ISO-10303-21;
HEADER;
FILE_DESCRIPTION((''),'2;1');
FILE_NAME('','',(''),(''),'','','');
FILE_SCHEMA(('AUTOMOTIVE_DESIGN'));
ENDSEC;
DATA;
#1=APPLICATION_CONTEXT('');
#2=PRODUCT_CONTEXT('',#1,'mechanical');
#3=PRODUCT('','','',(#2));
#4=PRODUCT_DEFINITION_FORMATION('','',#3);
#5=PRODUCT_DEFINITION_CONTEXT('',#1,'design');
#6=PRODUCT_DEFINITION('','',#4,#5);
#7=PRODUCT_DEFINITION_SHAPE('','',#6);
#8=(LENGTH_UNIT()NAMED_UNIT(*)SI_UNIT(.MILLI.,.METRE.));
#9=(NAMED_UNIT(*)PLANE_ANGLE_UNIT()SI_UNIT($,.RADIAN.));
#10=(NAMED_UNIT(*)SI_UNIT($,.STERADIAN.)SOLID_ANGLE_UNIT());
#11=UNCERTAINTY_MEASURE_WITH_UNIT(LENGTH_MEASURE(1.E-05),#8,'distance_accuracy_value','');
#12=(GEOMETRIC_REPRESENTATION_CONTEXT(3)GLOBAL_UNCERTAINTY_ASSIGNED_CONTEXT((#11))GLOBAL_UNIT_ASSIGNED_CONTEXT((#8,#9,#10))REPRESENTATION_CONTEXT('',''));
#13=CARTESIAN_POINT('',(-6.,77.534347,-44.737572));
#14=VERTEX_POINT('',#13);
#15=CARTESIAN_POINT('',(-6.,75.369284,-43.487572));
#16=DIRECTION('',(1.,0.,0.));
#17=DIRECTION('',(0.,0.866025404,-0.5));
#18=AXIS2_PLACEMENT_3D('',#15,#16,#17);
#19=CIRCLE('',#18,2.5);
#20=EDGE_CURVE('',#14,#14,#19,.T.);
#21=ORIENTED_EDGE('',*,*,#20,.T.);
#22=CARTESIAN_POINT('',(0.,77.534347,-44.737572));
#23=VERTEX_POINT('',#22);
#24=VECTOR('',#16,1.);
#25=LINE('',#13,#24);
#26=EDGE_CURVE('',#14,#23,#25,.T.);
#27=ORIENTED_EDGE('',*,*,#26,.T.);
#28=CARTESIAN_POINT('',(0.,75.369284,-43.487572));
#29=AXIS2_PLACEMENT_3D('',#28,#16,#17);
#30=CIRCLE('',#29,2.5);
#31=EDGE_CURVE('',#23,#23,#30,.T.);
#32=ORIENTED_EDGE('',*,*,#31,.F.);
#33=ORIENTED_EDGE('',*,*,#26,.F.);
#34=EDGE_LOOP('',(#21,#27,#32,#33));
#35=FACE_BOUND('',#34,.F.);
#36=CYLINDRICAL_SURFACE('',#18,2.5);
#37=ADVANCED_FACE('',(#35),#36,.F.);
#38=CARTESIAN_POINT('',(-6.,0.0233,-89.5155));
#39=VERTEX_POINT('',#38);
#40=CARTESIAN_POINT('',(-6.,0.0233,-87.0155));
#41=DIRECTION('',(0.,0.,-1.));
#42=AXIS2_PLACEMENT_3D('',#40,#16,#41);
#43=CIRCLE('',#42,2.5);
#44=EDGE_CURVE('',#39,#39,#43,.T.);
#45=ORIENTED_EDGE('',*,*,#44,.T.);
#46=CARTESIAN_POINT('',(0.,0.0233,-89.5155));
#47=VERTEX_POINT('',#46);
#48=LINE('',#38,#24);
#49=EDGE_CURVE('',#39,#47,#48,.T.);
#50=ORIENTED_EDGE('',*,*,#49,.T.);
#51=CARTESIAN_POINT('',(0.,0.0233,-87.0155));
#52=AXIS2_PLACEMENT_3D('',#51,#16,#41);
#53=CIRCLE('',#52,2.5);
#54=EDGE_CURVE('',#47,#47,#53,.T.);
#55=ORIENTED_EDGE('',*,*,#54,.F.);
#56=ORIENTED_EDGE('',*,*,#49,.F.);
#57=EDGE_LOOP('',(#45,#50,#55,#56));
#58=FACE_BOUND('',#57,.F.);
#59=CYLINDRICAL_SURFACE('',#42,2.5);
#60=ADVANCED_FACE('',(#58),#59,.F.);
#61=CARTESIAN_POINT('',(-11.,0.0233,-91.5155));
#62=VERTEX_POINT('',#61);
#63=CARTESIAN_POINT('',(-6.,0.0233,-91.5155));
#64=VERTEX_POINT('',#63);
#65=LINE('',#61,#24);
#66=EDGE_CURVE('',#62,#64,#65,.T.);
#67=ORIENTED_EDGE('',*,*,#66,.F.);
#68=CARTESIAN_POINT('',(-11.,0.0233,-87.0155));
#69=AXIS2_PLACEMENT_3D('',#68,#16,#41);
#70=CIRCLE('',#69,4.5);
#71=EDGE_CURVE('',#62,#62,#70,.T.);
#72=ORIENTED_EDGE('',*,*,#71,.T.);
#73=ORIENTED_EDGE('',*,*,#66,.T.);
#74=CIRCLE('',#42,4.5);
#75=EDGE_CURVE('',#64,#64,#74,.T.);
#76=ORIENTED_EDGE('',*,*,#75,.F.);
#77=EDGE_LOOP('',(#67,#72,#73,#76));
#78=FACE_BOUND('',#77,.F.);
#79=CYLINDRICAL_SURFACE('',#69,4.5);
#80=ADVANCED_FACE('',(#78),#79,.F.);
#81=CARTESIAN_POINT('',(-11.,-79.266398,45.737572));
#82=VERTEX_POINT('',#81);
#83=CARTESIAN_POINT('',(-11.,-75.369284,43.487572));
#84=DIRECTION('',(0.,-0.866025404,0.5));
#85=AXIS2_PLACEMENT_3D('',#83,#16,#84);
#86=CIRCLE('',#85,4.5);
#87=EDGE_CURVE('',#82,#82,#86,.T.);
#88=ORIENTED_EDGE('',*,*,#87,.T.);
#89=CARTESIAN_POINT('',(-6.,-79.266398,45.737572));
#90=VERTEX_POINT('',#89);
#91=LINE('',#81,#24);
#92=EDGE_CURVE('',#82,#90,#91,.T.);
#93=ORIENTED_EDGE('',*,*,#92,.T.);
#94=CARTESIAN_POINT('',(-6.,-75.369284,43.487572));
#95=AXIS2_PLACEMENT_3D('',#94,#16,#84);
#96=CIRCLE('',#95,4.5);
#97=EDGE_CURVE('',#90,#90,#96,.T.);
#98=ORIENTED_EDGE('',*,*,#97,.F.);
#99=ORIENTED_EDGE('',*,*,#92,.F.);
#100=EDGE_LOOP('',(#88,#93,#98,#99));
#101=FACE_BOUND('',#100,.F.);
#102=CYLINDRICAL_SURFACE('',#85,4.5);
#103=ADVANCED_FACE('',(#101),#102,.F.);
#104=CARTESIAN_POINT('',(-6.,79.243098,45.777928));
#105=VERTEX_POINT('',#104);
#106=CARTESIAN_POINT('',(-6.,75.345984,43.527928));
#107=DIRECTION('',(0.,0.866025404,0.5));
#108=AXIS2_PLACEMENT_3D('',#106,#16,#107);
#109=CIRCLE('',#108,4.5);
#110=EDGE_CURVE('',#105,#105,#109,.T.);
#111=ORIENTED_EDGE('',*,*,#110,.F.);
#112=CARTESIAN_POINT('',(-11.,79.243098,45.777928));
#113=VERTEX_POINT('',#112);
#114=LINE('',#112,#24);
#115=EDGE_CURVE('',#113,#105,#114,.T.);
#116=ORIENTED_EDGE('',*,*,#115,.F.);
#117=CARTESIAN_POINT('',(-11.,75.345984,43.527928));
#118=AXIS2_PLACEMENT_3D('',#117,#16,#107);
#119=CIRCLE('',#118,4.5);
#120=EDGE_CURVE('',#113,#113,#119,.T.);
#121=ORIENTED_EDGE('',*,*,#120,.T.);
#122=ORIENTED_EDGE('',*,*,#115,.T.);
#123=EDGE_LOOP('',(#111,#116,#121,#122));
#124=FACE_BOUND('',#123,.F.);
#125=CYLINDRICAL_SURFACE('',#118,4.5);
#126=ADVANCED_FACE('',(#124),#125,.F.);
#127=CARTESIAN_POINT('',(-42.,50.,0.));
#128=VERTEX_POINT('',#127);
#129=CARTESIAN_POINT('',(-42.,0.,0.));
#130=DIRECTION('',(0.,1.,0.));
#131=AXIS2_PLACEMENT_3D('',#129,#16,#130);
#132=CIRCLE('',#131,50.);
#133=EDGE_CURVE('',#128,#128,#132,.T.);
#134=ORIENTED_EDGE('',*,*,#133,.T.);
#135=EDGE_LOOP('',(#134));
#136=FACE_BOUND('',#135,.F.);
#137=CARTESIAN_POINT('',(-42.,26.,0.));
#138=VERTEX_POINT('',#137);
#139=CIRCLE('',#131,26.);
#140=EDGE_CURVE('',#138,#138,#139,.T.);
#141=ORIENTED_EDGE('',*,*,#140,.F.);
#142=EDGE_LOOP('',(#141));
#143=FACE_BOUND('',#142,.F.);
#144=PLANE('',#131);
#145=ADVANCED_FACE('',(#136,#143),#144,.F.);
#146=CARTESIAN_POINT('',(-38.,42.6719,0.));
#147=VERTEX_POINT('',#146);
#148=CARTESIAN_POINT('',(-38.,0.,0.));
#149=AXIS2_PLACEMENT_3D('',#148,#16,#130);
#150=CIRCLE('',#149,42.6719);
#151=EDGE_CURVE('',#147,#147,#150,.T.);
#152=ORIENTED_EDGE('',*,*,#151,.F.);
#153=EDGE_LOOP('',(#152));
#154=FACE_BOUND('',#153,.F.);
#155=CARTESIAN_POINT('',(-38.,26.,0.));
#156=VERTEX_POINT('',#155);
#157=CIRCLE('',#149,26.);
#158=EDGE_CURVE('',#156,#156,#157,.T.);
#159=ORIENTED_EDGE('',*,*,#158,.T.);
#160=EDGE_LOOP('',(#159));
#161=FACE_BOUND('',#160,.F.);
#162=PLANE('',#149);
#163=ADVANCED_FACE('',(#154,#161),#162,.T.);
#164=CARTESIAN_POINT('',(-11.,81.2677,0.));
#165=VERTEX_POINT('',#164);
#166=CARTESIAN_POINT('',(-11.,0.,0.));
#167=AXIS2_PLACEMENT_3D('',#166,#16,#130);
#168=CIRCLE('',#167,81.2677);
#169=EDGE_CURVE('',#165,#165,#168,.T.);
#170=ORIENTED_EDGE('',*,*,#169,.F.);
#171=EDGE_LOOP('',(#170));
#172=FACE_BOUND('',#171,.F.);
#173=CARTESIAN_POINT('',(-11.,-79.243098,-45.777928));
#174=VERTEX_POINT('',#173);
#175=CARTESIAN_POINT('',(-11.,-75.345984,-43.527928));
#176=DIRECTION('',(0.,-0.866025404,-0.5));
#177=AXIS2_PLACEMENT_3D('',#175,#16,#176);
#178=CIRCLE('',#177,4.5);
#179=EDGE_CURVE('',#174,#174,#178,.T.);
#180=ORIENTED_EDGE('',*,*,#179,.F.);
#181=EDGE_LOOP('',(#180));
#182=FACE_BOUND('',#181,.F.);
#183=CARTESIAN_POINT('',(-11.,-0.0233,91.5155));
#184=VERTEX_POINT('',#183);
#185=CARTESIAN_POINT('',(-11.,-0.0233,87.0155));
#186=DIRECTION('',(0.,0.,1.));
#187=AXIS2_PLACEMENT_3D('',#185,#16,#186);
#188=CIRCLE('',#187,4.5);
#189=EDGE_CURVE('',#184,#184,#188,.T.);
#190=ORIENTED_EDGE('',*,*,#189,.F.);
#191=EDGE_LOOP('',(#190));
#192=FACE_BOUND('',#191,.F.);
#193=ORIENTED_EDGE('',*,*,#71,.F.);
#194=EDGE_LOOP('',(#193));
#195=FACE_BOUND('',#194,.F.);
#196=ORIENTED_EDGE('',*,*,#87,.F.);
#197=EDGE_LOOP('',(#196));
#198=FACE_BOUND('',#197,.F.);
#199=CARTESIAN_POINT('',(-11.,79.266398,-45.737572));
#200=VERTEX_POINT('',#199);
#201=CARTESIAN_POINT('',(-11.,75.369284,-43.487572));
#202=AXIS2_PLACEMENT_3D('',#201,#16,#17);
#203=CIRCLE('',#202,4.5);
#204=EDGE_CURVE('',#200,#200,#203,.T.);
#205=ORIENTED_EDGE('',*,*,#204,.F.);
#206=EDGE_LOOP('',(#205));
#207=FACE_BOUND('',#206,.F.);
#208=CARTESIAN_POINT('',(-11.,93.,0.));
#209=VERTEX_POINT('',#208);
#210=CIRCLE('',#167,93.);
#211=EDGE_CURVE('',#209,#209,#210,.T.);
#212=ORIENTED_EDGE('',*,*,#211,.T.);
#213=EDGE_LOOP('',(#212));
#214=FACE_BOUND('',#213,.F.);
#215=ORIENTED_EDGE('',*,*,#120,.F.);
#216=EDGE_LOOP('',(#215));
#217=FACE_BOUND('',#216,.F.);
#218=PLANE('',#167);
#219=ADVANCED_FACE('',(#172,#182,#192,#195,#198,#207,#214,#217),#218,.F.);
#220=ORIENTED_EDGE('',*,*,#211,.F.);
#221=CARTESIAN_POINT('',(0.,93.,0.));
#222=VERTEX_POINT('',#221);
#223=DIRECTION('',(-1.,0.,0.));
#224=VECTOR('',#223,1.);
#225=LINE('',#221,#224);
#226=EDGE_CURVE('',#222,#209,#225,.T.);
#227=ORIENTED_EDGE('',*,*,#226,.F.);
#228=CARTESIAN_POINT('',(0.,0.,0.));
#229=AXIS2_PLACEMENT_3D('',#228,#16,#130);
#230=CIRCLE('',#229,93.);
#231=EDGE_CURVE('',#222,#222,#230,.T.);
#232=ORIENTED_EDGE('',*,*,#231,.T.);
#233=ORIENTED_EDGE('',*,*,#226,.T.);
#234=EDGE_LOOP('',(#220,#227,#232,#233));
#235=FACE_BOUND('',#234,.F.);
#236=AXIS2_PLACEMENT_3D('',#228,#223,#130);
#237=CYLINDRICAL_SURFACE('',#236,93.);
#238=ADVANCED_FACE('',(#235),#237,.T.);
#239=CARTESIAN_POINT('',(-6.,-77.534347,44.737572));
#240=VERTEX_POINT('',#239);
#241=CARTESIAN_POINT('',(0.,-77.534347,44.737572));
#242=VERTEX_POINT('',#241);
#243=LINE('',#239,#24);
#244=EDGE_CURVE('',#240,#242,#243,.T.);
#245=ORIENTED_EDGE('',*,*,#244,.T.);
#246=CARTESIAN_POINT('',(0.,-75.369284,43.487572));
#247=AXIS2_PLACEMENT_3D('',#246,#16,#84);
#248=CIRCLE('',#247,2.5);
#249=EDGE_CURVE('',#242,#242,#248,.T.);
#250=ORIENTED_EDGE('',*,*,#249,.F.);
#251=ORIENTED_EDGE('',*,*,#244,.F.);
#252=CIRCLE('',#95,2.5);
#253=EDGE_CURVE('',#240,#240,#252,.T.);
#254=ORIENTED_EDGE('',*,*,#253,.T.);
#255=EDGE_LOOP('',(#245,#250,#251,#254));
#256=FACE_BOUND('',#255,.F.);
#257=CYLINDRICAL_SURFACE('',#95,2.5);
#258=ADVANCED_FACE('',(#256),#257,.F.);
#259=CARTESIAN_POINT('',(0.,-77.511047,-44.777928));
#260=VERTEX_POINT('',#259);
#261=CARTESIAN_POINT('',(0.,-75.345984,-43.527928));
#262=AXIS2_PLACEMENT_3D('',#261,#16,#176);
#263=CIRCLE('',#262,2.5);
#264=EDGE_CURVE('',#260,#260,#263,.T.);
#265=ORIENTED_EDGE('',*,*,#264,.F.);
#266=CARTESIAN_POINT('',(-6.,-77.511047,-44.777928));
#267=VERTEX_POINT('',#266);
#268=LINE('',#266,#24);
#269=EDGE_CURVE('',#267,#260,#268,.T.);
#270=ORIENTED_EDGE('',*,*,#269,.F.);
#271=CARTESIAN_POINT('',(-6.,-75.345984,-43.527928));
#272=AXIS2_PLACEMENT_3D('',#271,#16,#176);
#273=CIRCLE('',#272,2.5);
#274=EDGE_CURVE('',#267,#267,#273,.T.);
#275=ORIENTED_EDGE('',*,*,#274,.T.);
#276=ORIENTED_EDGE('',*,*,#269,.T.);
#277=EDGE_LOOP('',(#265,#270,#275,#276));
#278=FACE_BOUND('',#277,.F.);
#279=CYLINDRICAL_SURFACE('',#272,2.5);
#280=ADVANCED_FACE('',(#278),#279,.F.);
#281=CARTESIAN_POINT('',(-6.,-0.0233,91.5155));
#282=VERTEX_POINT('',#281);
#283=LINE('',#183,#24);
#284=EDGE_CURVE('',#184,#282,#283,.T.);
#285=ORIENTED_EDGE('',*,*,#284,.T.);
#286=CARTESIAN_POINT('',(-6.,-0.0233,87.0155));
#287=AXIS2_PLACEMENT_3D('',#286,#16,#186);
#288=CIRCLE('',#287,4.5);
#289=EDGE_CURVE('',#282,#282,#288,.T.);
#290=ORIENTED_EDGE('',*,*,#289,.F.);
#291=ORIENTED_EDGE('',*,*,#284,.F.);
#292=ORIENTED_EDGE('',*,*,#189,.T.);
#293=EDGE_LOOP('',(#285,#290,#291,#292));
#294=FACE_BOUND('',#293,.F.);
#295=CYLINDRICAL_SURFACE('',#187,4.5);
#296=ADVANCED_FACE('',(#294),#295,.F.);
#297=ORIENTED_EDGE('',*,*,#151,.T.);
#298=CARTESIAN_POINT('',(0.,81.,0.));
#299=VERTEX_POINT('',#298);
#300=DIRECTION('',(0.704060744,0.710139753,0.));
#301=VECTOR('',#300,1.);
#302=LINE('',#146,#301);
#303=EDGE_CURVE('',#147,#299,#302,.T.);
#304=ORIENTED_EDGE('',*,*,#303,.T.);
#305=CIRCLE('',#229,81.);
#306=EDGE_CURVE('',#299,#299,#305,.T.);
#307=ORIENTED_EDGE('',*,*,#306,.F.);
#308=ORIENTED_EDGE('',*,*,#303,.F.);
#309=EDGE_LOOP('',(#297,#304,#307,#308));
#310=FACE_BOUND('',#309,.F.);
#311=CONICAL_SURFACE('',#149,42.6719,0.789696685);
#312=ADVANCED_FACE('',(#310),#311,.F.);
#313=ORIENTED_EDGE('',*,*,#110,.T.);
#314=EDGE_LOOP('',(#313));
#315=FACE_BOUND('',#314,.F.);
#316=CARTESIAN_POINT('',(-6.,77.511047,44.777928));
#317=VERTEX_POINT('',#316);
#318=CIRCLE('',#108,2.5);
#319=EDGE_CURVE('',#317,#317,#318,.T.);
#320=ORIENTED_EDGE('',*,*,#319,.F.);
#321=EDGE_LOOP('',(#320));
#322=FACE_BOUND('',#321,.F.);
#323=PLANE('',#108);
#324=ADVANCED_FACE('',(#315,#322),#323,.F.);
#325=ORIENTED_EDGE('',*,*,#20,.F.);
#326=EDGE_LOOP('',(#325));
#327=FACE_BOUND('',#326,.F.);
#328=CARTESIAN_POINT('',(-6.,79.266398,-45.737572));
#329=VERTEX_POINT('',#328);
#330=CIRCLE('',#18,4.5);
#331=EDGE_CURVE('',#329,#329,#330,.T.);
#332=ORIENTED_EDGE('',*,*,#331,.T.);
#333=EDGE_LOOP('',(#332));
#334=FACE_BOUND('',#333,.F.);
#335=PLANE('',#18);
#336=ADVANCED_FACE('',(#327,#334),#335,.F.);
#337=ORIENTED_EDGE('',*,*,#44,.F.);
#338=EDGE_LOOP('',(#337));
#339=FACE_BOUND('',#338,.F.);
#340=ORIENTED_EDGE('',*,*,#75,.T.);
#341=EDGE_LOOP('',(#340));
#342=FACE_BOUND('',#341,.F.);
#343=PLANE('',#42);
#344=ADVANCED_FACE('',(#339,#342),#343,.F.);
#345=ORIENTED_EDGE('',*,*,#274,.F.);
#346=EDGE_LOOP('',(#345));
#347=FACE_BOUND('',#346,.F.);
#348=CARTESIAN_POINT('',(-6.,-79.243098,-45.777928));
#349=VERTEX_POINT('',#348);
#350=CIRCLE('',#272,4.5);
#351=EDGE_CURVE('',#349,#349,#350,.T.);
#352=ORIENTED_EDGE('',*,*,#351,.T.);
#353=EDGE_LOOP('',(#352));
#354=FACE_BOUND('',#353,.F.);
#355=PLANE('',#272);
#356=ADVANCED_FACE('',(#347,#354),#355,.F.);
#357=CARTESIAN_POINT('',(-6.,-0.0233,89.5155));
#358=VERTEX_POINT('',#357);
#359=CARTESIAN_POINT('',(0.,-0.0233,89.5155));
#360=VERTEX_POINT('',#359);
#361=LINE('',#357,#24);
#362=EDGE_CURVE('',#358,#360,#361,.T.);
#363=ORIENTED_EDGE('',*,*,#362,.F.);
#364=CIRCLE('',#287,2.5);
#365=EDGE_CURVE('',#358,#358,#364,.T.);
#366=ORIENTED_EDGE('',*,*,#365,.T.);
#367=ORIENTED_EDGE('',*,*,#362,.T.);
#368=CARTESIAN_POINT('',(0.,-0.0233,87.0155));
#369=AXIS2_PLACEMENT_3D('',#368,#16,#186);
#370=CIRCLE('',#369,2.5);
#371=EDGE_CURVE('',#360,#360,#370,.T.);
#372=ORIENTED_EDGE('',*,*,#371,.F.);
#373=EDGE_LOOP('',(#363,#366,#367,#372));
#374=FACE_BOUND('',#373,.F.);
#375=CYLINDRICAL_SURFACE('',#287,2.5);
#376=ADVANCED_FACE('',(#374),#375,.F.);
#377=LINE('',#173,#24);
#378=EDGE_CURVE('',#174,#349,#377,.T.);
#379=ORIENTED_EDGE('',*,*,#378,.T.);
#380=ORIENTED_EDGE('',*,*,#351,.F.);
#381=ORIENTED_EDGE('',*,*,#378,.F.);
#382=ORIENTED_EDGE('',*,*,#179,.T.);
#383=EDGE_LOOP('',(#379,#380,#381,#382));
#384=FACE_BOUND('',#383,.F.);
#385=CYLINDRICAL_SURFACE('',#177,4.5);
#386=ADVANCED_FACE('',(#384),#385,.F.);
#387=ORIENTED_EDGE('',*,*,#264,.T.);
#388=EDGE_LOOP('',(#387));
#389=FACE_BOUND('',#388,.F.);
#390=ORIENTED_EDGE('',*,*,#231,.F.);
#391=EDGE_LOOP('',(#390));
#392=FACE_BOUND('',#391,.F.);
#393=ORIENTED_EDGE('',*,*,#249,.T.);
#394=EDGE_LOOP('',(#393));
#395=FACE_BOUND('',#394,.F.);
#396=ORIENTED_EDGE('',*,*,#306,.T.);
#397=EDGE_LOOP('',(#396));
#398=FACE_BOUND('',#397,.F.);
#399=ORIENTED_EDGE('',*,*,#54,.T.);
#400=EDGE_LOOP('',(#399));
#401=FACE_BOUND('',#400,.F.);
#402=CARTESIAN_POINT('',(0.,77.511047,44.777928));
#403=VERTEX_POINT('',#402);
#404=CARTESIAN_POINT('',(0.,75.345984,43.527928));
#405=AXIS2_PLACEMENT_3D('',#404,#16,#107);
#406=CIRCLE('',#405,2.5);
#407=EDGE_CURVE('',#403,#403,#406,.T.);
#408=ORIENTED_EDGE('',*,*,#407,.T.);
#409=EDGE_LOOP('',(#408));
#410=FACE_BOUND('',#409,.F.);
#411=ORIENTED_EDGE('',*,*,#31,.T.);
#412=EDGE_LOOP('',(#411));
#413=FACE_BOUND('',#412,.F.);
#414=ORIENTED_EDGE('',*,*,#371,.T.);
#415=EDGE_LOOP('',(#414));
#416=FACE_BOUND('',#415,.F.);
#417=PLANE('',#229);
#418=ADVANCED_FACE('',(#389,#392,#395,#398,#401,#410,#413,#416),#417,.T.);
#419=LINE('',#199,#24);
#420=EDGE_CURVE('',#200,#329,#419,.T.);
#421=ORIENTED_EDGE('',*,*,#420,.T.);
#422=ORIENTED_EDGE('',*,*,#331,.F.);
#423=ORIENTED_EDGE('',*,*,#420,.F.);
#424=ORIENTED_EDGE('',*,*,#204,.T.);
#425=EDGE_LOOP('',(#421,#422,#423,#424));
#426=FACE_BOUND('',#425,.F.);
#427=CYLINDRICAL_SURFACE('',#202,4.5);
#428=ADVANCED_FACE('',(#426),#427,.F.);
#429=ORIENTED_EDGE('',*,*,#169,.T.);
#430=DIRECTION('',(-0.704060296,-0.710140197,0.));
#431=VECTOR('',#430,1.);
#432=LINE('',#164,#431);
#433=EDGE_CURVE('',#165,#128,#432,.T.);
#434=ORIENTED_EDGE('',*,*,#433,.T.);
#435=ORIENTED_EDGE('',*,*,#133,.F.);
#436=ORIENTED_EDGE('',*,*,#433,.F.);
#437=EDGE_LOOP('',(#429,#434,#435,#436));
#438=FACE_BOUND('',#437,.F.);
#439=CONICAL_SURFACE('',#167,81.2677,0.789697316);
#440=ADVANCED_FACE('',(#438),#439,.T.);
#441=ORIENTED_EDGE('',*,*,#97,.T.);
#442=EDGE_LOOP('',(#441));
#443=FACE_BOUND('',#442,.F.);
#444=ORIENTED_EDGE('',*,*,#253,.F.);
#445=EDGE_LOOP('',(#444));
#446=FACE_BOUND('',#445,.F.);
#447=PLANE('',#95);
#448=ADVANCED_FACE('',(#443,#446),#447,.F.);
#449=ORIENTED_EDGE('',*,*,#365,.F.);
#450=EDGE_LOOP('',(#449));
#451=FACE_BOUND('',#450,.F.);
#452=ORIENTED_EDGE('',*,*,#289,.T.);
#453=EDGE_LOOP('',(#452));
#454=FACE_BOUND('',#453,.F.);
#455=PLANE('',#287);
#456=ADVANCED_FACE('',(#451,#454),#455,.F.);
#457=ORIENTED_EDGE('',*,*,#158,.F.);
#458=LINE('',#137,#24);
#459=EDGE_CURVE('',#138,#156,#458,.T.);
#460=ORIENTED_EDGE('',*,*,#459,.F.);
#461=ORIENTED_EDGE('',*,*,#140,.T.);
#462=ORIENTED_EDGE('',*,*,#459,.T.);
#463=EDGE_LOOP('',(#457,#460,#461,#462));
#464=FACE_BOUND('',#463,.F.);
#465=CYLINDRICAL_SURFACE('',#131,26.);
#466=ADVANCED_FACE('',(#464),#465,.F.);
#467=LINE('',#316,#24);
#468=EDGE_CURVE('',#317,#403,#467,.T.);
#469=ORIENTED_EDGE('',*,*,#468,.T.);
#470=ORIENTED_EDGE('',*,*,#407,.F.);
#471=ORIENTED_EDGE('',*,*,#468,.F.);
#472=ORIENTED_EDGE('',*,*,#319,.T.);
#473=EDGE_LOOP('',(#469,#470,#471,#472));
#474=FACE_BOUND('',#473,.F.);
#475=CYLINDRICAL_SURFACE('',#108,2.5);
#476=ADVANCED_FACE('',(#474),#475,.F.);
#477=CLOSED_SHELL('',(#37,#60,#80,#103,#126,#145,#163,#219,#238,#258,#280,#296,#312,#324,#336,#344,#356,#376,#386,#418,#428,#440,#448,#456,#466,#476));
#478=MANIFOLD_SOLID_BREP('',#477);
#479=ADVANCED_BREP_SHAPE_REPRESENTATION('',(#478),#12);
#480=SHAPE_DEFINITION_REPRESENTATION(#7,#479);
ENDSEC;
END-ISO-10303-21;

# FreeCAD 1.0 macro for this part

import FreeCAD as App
import Part
import Sketcher

V = App.Vector

doc = App.newDocument("Part")
params = doc.addObject("Spreadsheet::Sheet", "Params")
for row, (alias, value) in enumerate([
    ("sketch1_width", "11 mm"),
    ("sketch1_width2", "4 mm"),
    ("sketch1_height", "12 mm"),
    ("sketch1_height2", "24 mm"),
    ("revolution_angle", "360 deg"),
    ("sketch2_diameter", "5 mm"),
    ("hole_diameter", "5 mm"),
    ("hole_cbore_diameter", "9 mm"),
    ("hole_cbore_depth", "5 mm"),
], start=1):
    params.set(f"A{row}", alias)
    params.set(f"B{row}", "=" + value)
    params.setAlias(f"B{row}", alias)

body = doc.addObject("PartDesign::Body", "Body")

sketch1 = body.newObject("Sketcher::SketchObject", "Sketch")
sketch1.AttachmentSupport = (doc.getObject("XY_Plane"), [""])
sketch1.MapMode = "FlatFace"
sketch1.addGeometry(Part.LineSegment(V(-38, 42.7, 0), V(0, 81, 0)), False)
sketch1.addGeometry(Part.LineSegment(V(0, 81, 0), V(0, 93, 0)), False)
sketch1.addGeometry(Part.LineSegment(V(0, 93, 0), V(-11, 93, 0)), False)
sketch1.addGeometry(Part.LineSegment(V(-11, 93, 0), V(-11, 81.3, 0)), False)
sketch1.addGeometry(Part.LineSegment(V(-11, 81.3, 0), V(-42, 50, 0)), False)
sketch1.addGeometry(Part.LineSegment(V(-42, 50, 0), V(-42, 26, 0)), False)
sketch1.addGeometry(Part.LineSegment(V(-42, 26, 0), V(-38, 26, 0)), False)
sketch1.addGeometry(Part.LineSegment(V(-38, 26, 0), V(-38, 42.7, 0)), False)
sketch1.addConstraint(Sketcher.Constraint("Coincident", 0, 2, 1, 1))
sketch1.addConstraint(Sketcher.Constraint("Coincident", 1, 2, 2, 1))
sketch1.addConstraint(Sketcher.Constraint("Coincident", 2, 2, 3, 1))
sketch1.addConstraint(Sketcher.Constraint("Coincident", 3, 2, 4, 1))
sketch1.addConstraint(Sketcher.Constraint("Coincident", 4, 2, 5, 1))
sketch1.addConstraint(Sketcher.Constraint("Coincident", 5, 2, 6, 1))
sketch1.addConstraint(Sketcher.Constraint("Coincident", 6, 2, 7, 1))
sketch1.addConstraint(Sketcher.Constraint("Coincident", 7, 2, 0, 1))
sketch1.addConstraint(Sketcher.Constraint("Vertical", 1))
sketch1.addConstraint(Sketcher.Constraint("Horizontal", 2))
sketch1.addConstraint(Sketcher.Constraint("Vertical", 3))
sketch1.addConstraint(Sketcher.Constraint("Vertical", 5))
sketch1.addConstraint(Sketcher.Constraint("Horizontal", 6))
sketch1.addConstraint(Sketcher.Constraint("Vertical", 7))
sketch1.addConstraint(Sketcher.Constraint("PointOnObject", 0, 2, -2))
sketch1.addConstraint(Sketcher.Constraint("Parallel", 0, 4))
sketch1.addConstraint(Sketcher.Constraint("DistanceX", 2, 2, 2, 1, 11.0))
sketch1.addConstraint(Sketcher.Constraint("DistanceX", 6, 1, 6, 2, 4.0))
sketch1.addConstraint(Sketcher.Constraint("DistanceY", 1, 1, 1, 2, 12.0))
sketch1.addConstraint(Sketcher.Constraint("DistanceY", 5, 2, 5, 1, 24.0))
sketch1.addConstraint(Sketcher.Constraint("DistanceY", -1, 1, 1, 2, 93.0))
sketch1.addConstraint(Sketcher.Constraint("DistanceX", 4, 2, -1, 1, 42.0))
sketch1.addConstraint(Sketcher.Constraint("DistanceY", 5, 2, 2, 2, 67.0))
sketch1.addConstraint(Sketcher.Constraint("DistanceY", 7, 1, 7, 2, 16.672))
sketch1.setExpression("Constraints[16]", "Params.sketch1_width")
sketch1.setExpression("Constraints[17]", "Params.sketch1_width2")
sketch1.setExpression("Constraints[18]", "Params.sketch1_height")
sketch1.setExpression("Constraints[19]", "Params.sketch1_height2")
revolution = body.newObject("PartDesign::Revolution", "Revolution")
revolution.Profile = sketch1
revolution.ReferenceAxis = (sketch1, ["H_Axis"])
revolution.setExpression("Angle", "Params.revolution_angle")

sketch2 = body.newObject("Sketcher::SketchObject", "Sketch001")
sketch2.AttachmentSupport = (doc.getObject("YZ_Plane"), [""])
sketch2.MapMode = "FlatFace"
sketch2.AttachmentOffset = App.Placement(V(0, 0, -11), App.Rotation())
sketch2.addGeometry(Part.Circle(V(0, 87, 0), V(0, 0, 1), 2.5), False)
sketch2.addConstraint(Sketcher.Constraint("Diameter", 0, 5.0))
sketch2.addConstraint(Sketcher.Constraint("DistanceX", 0, 3, -1, 1, 0.0233))
sketch2.addConstraint(Sketcher.Constraint("DistanceY", -1, 1, 0, 3, 87.0155))
sketch2.setExpression("Constraints[0]", "Params.sketch2_diameter")
doc.recompute()
hole = body.newObject("PartDesign::Hole", "Hole")
hole.Profile = sketch2
hole.ThreadType = "None"
hole.setExpression("Diameter", "Params.hole_diameter")
hole.DepthType = "ThroughAll"
hole.HoleCutType = "Counterbore"
hole.setExpression("HoleCutDiameter", "Params.hole_cbore_diameter")
hole.setExpression("HoleCutDepth", "Params.hole_cbore_depth")
hole.Reversed = True
doc.recompute()

polarpattern = body.newObject("PartDesign::PolarPattern", "PolarPattern")
polarpattern.Originals = [hole]
polarpattern.Axis = (doc.getObject("X_Axis"), [""])
polarpattern.Angle = 360
polarpattern.Occurrences = 6
body.Tip = polarpattern

doc.recompute()
